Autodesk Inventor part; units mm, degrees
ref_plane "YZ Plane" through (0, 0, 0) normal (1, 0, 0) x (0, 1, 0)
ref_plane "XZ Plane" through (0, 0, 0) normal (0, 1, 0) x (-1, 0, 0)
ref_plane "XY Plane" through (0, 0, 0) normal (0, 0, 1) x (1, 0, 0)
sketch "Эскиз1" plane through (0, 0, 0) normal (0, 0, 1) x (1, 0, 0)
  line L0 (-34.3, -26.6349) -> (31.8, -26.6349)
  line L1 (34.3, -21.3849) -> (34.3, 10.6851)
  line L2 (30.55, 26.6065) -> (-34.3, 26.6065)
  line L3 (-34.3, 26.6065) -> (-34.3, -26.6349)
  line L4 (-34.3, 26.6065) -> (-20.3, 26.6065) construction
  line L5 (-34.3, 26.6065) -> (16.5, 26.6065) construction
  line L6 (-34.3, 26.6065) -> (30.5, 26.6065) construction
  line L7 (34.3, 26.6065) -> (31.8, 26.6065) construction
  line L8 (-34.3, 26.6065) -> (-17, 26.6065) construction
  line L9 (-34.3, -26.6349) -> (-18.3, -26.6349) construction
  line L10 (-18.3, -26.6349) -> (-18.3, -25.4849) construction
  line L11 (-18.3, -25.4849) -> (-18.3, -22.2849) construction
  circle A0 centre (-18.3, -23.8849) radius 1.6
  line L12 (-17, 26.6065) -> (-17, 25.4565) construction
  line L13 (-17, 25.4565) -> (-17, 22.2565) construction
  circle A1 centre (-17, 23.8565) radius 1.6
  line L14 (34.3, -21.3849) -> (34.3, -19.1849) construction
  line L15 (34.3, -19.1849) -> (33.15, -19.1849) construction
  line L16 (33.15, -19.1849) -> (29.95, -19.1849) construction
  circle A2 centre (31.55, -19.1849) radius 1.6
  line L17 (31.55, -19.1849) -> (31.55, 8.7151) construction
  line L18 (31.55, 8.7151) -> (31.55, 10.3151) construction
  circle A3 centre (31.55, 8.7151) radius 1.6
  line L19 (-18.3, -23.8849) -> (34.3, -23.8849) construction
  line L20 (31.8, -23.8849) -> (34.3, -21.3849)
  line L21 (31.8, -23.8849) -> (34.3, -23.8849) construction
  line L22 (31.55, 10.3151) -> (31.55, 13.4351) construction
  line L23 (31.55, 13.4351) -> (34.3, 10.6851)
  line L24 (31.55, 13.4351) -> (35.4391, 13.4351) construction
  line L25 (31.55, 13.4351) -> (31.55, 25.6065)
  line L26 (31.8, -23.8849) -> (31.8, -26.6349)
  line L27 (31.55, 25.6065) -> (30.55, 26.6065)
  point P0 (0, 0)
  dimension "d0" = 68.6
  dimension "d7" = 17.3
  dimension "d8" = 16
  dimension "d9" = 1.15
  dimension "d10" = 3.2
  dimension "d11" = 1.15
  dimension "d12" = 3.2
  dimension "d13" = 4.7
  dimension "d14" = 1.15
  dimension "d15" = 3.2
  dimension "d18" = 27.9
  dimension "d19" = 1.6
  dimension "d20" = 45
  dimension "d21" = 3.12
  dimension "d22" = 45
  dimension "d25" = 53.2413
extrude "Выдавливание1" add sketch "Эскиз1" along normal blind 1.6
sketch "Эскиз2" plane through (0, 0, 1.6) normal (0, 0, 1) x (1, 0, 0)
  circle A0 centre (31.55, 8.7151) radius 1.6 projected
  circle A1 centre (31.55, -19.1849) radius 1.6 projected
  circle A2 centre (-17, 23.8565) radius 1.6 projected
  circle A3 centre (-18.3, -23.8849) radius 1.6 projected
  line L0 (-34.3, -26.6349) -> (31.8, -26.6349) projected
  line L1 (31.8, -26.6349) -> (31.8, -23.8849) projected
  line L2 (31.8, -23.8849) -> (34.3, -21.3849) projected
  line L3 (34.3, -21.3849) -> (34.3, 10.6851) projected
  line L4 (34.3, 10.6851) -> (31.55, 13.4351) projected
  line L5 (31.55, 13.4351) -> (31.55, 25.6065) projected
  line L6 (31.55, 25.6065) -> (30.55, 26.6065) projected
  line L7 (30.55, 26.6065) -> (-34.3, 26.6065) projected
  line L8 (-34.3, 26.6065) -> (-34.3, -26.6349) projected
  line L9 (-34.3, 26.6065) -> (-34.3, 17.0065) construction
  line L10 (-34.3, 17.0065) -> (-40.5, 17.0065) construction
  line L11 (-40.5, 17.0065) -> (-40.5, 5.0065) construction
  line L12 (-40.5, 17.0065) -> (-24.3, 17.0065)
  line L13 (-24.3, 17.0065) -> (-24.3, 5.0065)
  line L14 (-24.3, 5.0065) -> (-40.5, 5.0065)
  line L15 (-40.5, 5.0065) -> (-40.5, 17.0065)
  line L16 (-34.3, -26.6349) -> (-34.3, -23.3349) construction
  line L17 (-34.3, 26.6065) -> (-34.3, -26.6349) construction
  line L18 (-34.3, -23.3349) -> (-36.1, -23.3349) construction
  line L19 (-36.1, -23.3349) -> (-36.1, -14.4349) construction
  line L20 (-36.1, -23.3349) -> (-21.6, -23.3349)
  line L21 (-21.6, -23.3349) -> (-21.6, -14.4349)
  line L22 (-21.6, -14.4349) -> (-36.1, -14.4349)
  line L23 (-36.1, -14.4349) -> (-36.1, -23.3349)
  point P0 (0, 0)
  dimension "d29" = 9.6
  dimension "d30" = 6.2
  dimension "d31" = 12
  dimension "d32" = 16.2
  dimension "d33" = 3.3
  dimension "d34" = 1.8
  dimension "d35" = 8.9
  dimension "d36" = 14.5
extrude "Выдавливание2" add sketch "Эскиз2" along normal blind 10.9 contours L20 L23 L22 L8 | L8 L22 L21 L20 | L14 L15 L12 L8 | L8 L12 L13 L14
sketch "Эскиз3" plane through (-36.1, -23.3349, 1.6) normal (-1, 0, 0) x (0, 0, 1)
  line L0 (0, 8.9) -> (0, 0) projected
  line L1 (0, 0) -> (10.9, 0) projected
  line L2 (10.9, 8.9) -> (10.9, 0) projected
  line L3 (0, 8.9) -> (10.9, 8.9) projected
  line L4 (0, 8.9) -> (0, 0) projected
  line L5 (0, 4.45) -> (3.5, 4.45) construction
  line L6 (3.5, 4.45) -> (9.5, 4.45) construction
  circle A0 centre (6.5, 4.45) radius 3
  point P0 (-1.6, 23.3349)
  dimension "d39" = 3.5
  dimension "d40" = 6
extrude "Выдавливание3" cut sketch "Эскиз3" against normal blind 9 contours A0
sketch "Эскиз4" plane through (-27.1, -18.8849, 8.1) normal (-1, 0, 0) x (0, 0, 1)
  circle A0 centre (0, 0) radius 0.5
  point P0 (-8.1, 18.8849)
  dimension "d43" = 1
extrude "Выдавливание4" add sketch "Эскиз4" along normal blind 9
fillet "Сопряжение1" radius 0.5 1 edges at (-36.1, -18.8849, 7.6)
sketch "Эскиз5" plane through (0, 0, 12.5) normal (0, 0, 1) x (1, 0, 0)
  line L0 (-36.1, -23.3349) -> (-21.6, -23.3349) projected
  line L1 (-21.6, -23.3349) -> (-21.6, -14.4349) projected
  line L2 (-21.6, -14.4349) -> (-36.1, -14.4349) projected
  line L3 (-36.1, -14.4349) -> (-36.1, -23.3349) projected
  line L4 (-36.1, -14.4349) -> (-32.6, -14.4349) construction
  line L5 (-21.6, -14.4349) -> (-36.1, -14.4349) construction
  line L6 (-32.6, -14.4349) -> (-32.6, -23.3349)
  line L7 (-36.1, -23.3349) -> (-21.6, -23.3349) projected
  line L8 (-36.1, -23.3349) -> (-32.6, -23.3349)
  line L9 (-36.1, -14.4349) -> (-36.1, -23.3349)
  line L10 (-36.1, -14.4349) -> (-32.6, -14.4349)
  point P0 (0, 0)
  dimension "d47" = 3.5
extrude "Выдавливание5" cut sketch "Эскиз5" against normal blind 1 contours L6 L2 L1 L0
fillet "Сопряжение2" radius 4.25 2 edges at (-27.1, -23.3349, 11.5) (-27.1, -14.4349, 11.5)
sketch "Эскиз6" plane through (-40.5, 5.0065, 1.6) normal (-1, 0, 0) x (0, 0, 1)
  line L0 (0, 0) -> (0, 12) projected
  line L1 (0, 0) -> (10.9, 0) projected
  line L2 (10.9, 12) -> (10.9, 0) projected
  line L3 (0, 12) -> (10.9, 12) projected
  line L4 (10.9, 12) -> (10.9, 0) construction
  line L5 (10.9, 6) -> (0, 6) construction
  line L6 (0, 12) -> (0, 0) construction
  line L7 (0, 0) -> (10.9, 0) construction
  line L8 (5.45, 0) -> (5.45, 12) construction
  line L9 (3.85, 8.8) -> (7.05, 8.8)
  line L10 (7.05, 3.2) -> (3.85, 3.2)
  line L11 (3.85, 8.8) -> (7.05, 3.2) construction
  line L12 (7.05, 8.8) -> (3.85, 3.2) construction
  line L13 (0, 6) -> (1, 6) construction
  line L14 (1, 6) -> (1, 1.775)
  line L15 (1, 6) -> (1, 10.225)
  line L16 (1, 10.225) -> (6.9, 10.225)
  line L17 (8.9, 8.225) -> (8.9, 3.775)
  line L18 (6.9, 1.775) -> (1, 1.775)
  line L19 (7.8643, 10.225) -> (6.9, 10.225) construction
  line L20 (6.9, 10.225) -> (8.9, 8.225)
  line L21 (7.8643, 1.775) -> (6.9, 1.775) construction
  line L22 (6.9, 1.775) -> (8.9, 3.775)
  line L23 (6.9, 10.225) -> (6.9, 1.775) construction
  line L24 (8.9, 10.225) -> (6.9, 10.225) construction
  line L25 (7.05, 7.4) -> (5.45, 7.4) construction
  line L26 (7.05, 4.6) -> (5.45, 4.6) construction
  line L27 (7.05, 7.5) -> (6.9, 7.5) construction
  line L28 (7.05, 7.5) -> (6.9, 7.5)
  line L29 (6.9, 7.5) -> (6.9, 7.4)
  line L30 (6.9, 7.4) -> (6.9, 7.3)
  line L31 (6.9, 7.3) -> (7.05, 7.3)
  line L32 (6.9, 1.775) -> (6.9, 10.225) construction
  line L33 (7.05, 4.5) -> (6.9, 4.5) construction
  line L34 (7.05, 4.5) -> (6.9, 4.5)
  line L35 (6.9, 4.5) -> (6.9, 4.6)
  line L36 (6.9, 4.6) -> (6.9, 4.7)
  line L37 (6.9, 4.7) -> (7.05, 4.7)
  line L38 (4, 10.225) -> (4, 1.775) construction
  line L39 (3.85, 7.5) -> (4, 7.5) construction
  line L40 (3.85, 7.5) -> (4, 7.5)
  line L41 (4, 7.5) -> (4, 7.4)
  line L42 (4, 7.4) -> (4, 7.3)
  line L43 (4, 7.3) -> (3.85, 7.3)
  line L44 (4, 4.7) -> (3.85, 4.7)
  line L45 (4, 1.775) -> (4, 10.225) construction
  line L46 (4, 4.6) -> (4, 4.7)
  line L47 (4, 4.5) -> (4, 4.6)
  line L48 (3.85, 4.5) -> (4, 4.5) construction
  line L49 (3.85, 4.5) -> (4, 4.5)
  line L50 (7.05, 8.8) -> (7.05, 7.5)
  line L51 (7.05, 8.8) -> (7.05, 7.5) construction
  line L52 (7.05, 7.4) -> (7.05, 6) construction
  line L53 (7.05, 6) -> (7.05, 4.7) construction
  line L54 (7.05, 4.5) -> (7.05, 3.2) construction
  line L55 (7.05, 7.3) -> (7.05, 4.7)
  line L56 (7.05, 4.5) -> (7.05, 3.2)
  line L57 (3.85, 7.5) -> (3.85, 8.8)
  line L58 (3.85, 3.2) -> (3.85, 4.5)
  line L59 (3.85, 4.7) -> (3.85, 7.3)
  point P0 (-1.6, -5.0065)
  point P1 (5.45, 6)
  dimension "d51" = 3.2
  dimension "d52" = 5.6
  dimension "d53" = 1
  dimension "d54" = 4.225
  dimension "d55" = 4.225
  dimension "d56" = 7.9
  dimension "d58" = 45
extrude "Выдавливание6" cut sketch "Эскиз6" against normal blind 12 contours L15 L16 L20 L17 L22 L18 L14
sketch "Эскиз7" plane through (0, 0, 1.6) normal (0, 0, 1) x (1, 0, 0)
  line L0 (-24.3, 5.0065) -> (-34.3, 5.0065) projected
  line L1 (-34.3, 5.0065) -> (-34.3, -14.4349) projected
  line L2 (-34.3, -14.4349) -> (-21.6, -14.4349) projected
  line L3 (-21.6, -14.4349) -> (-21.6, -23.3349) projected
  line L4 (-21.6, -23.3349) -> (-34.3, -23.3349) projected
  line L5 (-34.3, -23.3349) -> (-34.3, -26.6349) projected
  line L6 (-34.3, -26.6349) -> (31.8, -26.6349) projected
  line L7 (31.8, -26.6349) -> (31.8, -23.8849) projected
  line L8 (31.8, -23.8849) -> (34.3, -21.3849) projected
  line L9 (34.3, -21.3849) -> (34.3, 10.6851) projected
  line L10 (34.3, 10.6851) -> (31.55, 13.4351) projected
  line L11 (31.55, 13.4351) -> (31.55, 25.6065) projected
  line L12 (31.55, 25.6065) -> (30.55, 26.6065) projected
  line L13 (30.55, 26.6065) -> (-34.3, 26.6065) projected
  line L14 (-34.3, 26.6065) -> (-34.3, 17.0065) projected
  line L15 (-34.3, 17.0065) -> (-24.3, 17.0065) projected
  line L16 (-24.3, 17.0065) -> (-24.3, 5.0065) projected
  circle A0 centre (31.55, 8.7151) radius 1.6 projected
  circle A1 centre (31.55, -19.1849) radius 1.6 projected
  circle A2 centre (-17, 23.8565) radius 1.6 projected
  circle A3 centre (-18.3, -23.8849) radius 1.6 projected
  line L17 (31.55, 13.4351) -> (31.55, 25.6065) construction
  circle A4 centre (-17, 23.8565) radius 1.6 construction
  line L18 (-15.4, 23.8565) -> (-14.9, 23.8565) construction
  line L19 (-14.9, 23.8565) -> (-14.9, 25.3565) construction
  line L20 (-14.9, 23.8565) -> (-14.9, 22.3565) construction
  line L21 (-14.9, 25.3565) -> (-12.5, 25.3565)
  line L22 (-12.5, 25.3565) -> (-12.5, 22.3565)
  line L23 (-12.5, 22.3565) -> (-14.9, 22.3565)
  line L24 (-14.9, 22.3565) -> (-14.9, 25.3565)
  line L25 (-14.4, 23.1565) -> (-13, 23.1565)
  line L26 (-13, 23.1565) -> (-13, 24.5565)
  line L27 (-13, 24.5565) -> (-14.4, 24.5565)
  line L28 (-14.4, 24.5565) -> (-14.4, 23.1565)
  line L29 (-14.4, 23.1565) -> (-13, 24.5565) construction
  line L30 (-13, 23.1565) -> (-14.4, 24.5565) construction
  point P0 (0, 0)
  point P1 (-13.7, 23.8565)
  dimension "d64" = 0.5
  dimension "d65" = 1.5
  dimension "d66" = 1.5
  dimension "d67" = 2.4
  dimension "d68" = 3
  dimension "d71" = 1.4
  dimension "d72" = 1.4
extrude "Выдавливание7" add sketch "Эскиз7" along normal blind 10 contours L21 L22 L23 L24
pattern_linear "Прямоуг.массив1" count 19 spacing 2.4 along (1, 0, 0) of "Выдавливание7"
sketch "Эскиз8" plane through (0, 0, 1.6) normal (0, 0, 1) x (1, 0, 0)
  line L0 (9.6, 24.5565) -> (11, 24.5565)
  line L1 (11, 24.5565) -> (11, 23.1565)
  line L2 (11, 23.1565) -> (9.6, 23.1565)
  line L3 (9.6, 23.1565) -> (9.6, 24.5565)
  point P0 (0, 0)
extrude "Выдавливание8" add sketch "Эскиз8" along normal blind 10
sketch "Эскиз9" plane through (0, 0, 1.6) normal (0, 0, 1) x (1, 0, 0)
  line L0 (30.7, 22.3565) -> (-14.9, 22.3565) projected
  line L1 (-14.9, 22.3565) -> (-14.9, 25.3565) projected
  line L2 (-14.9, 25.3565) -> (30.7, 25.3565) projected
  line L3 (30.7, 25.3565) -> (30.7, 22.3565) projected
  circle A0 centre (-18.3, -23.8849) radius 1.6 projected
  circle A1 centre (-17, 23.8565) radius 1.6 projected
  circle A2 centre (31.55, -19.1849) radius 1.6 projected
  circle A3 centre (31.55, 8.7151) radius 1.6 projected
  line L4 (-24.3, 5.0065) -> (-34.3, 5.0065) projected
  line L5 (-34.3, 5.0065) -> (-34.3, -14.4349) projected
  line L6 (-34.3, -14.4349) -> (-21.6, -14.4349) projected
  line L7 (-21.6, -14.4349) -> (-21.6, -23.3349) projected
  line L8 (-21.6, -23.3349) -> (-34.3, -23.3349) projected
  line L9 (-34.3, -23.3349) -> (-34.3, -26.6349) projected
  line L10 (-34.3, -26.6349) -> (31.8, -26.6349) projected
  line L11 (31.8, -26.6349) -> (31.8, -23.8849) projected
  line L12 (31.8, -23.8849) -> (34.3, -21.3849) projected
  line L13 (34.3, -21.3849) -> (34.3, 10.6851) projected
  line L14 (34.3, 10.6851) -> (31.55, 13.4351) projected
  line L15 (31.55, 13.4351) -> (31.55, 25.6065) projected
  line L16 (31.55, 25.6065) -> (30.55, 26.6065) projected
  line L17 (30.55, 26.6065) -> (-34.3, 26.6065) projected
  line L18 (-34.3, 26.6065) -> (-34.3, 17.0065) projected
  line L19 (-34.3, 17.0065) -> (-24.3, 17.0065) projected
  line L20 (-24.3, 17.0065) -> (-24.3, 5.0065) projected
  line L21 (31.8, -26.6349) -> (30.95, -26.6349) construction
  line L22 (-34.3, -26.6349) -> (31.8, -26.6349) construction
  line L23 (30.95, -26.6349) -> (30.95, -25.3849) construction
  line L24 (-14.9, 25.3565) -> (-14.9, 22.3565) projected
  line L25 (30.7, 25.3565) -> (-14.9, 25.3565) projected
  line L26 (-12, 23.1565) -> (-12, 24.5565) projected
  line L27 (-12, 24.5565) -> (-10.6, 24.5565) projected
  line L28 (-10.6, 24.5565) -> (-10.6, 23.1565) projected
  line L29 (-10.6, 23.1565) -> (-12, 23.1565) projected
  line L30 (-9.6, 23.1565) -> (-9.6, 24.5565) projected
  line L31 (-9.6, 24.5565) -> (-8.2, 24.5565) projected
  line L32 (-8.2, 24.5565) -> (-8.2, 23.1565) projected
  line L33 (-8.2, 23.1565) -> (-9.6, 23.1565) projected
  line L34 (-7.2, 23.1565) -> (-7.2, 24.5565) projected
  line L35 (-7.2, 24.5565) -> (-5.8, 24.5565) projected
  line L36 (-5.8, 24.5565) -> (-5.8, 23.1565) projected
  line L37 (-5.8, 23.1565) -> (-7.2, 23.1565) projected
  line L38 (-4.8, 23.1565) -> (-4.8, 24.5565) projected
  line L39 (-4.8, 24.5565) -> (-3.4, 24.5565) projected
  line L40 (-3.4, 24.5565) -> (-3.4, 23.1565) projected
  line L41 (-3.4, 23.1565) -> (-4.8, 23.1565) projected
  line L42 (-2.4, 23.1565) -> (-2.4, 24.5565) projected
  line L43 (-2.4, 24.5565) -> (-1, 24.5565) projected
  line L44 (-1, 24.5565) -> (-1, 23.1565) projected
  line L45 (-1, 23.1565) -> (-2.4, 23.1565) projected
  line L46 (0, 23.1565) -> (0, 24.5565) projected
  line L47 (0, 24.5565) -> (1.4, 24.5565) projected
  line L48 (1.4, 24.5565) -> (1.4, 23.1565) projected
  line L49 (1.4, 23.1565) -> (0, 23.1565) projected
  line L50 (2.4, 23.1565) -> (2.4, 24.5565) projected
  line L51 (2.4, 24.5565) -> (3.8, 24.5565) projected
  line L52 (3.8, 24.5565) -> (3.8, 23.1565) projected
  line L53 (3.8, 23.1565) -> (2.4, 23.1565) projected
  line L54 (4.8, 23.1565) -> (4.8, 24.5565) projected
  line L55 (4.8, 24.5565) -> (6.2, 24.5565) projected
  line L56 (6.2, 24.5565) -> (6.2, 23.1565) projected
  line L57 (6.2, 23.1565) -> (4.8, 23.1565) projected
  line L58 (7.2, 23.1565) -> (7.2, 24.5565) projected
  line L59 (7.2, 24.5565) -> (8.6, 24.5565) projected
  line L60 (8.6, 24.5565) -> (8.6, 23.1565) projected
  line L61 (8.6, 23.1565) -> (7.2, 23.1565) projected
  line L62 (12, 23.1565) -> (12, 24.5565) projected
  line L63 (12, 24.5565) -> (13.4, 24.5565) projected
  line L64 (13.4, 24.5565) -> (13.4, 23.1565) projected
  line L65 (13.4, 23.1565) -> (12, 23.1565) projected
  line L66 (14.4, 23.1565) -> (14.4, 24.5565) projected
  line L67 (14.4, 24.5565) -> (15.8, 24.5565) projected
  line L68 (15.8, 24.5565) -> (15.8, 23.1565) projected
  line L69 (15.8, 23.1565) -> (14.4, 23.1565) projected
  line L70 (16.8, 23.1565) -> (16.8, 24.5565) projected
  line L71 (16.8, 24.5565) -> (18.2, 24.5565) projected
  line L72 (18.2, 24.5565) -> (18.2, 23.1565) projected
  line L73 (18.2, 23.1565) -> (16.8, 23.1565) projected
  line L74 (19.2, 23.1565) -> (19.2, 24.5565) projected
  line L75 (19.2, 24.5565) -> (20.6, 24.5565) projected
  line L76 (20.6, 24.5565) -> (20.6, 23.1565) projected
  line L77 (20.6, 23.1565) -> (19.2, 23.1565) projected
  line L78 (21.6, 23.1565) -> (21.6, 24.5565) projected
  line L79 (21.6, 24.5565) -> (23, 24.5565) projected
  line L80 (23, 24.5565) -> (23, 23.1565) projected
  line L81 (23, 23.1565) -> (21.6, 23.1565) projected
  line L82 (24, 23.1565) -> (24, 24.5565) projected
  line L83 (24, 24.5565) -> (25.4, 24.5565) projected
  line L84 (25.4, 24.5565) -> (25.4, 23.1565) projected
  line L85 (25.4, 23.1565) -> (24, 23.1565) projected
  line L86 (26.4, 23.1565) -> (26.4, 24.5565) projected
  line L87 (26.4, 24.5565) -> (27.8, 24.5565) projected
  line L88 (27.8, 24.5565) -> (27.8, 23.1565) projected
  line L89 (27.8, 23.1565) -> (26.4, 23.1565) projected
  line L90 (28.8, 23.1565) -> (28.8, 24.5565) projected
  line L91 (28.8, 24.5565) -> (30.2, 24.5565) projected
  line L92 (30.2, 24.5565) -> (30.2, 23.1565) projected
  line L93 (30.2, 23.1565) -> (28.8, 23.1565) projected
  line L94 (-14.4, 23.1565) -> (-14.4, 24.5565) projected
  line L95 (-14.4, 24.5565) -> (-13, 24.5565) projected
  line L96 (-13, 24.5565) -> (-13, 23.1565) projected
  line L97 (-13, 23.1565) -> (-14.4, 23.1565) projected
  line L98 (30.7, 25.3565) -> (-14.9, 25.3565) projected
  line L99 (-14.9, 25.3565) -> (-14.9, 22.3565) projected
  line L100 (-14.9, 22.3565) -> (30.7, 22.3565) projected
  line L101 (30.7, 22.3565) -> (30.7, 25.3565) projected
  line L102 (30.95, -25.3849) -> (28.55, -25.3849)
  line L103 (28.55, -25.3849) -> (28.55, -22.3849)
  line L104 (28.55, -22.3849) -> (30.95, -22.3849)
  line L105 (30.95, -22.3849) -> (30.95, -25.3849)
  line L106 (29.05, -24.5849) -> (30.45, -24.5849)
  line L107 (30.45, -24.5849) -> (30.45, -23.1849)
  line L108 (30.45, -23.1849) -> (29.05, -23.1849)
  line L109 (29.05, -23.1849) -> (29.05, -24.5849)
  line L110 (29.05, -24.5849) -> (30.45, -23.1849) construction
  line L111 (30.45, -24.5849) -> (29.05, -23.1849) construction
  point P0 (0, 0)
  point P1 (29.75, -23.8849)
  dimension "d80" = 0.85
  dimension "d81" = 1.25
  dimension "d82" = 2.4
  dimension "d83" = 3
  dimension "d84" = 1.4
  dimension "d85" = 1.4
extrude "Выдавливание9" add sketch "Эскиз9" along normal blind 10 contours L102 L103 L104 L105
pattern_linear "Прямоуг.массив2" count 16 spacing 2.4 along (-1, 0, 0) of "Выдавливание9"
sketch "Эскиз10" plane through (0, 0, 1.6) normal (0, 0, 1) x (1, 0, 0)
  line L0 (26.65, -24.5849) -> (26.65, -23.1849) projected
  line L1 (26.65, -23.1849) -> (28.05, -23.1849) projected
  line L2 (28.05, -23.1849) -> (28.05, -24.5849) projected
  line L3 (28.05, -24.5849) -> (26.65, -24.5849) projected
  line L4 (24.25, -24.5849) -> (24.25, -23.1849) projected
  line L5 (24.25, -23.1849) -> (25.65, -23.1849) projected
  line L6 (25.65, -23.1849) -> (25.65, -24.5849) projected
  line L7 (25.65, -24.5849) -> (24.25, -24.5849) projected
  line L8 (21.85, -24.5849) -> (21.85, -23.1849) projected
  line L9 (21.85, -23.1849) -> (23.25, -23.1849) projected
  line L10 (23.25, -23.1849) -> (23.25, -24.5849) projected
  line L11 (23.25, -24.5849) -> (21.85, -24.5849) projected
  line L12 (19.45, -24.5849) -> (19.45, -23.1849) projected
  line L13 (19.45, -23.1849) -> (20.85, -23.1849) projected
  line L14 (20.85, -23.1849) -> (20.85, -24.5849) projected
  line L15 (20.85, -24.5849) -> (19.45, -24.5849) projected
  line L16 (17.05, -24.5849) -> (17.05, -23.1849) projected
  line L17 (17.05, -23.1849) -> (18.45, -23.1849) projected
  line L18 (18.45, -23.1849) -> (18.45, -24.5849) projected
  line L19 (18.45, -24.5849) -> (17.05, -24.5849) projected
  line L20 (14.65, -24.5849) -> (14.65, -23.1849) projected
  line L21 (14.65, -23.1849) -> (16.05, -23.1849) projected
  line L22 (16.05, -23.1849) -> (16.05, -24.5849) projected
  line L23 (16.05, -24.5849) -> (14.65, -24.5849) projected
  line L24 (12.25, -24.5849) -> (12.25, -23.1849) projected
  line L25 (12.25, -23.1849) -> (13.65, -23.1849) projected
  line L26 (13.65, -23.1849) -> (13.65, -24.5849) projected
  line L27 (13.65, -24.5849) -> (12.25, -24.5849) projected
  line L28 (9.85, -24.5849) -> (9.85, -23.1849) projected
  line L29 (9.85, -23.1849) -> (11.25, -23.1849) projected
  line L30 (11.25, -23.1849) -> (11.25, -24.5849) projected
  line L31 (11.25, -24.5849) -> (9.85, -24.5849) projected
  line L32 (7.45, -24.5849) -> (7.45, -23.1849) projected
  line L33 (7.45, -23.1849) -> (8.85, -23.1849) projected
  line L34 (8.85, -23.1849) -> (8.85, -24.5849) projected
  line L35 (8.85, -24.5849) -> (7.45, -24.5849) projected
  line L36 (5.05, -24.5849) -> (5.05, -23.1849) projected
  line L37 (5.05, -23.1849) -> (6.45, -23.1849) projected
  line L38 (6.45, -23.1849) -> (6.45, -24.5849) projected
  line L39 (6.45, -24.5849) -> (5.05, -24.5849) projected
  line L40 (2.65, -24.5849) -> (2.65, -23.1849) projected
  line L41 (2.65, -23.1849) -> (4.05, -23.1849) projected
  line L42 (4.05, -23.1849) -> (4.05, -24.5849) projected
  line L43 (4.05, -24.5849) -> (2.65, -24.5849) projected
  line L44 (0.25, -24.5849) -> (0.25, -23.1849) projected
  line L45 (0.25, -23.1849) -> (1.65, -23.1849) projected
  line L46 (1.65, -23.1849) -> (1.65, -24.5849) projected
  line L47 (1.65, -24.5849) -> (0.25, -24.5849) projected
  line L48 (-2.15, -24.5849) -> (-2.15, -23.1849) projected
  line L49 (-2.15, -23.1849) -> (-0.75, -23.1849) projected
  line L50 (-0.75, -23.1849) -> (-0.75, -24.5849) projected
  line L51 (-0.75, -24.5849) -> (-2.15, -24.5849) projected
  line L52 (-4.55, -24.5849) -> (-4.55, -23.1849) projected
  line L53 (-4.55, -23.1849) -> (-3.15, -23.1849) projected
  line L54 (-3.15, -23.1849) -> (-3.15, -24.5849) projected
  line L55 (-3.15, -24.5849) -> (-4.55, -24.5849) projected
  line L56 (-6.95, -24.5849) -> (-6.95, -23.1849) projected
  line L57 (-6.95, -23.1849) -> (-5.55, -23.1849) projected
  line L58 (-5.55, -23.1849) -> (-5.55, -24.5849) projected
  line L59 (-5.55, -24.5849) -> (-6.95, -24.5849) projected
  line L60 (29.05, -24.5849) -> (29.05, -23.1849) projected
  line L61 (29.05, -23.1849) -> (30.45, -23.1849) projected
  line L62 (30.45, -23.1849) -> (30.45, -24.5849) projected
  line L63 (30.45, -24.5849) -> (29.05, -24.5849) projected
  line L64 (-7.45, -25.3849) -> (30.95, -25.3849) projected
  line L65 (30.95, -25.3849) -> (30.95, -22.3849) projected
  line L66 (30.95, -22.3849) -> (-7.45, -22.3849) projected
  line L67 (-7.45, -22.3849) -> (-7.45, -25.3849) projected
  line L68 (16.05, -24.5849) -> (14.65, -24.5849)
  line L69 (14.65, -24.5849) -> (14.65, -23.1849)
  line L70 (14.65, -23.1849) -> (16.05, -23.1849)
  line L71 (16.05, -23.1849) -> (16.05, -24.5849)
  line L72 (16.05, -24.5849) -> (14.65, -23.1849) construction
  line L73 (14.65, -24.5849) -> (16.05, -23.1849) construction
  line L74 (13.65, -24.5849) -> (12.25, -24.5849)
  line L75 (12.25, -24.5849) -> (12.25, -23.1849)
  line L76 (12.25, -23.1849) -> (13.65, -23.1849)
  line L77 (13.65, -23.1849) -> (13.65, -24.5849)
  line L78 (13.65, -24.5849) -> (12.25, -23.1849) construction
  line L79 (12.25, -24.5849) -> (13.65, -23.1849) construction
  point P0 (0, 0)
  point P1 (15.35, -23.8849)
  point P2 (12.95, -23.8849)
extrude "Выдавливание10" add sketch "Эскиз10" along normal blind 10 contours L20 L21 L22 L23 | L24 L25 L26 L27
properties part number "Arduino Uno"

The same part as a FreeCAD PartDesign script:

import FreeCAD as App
import Part
import Sketcher
from FreeCAD import Vector
Q = App.Units.Quantity


def edges_at(feature, points):
    """Names of the edges that pass closest to the given points."""
    edges = feature.Shape.Edges
    near = lambda p: min(range(len(edges)), key=lambda i: edges[i].distToShape(Part.Vertex(*p))[0])
    return sorted({f"Edge{near(p) + 1}" for p in points})

doc = App.newDocument("Part")
body = doc.addObject("PartDesign::Body", "Body")

# Sketch on XY plane
sketch1 = body.newObject("Sketcher::SketchObject", "Sketch")
sketch1.AttachmentSupport = (doc.getObject("XY_Plane"), [""])
sketch1.MapMode = "FlatFace"
sketch1.addGeometry([
    Part.LineSegment(Vector(-34.3, 26.6, 0), Vector(-34.3, -26.6, 0)),  # 0
    Part.LineSegment(Vector(-34.3, -26.6, 0), Vector(31.8, -26.6, 0)),  # 1
    Part.LineSegment(Vector(31.8, -26.6, 0), Vector(31.8, -23.9, 0)),  # 2
    Part.LineSegment(Vector(31.8, -23.9, 0), Vector(34.3, -21.4, 0)),  # 3
    Part.LineSegment(Vector(34.3, -21.4, 0), Vector(34.3, 10.7, 0)),  # 4
    Part.LineSegment(Vector(34.3, 10.7, 0), Vector(31.6, 13.4, 0)),  # 5
    Part.LineSegment(Vector(31.6, 13.4, 0), Vector(31.6, 25.6, 0)),  # 6
    Part.LineSegment(Vector(31.6, 25.6, 0), Vector(30.6, 26.6, 0)),  # 7
    Part.LineSegment(Vector(30.6, 26.6, 0), Vector(-34.3, 26.6, 0)),  # 8
    Part.Circle(Vector(-18.3, -23.9, 0), Vector(0, 0, 1), 1.6),  # 9
    Part.Circle(Vector(31.6, -19.2, 0), Vector(0, 0, 1), 1.6),  # 10
    Part.Circle(Vector(-17, 23.9, 0), Vector(0, 0, 1), 1.6),  # 11
    Part.Circle(Vector(31.6, 8.7, 0), Vector(0, 0, 1), 1.6),  # 12
], False)
sketch1.addConstraint([
    Sketcher.Constraint("Coincident", 0, 2, 1, 1),
    Sketcher.Constraint("Coincident", 1, 2, 2, 1),
    Sketcher.Constraint("Coincident", 2, 2, 3, 1),
    Sketcher.Constraint("Coincident", 3, 2, 4, 1),
    Sketcher.Constraint("Coincident", 4, 2, 5, 1),
    Sketcher.Constraint("Coincident", 5, 2, 6, 1),
    Sketcher.Constraint("Coincident", 6, 2, 7, 1),
    Sketcher.Constraint("Coincident", 7, 2, 8, 1),
    Sketcher.Constraint("Coincident", 8, 2, 0, 1),
    Sketcher.Constraint("Vertical", 0),
    Sketcher.Constraint("Horizontal", 1),
    Sketcher.Constraint("Vertical", 2),
    Sketcher.Constraint("Vertical", 4),
    Sketcher.Constraint("Vertical", 6),
    Sketcher.Constraint("Horizontal", 8),
    Sketcher.Constraint("Equal", 9, 10),
    Sketcher.Constraint("Equal", 10, 11),
    Sketcher.Constraint("Equal", 11, 12),
    Sketcher.Constraint("Perpendicular", 3, 5),
    Sketcher.Constraint("Parallel", 5, 7),
    Sketcher.Constraint("Horizontal", 9, 3, 2, 2),
    Sketcher.Constraint("Vertical", 10, 3, 12, 3),
    Sketcher.Constraint("Vertical", 12, 3, 5, 2),
    Sketcher.Constraint("Diameter", 9, 3.2),
    Sketcher.Constraint("Angle", 3, Q("45 deg")),
    Sketcher.Constraint("DistanceX", 0, 2, 9, 3, 16.0),
    Sketcher.Constraint("DistanceY", 9, 3, 10, 3, 4.7),
    Sketcher.Constraint("DistanceY", 10, 3, 12, 3, 27.9),
    Sketcher.Constraint("DistanceX", 0, 2, 11, 3, 17.3),
    Sketcher.Constraint("DistanceX", 1, 1, 1, 2, 66.1),
    Sketcher.Constraint("DistanceY", 0, 2, 0, 1, 53.2414),
    Sketcher.Constraint("DistanceX", 11, 3, -1, 1, 17.0),
    Sketcher.Constraint("DistanceX", 7, 2, 6, 2, 1.0),
    Sketcher.Constraint("DistanceX", 8, 2, 8, 1, 64.85),
    Sketcher.Constraint("DistanceY", 2, 1, 2, 2, 2.75),
    Sketcher.Constraint("DistanceY", 4, 1, 4, 2, 32.07),
    Sketcher.Constraint("DistanceX", -1, 1, 3, 2, 34.3),
    Sketcher.Constraint("DistanceY", 11, 3, 8, 2, 2.75),
    Sketcher.Constraint("DistanceY", 9, 3, -1, 1, 23.885),
])
pad1 = body.newObject("PartDesign::Pad", "Pad")
pad1.Profile = sketch1
pad1.Length = 1.6

# Sketch on XY plane
sketch2 = body.newObject("Sketcher::SketchObject", "Sketch001")
sketch2.AttachmentSupport = (doc.getObject("XY_Plane"), [""])
sketch2.MapMode = "FlatFace"
sketch2.AttachmentOffset = App.Placement(Vector(0, 0, 1.6), App.Rotation())
sketch2.addGeometry([
    Part.LineSegment(Vector(-36, -23, 0), Vector(-22, -23, 0)),  # 0
    Part.LineSegment(Vector(-22, -23, 0), Vector(-22, -14, 0)),  # 1
    Part.LineSegment(Vector(-22, -14, 0), Vector(-36, -14, 0)),  # 2
    Part.LineSegment(Vector(-36, -14, 0), Vector(-36, -23, 0)),  # 3
    Part.LineSegment(Vector(-40, 5, 0), Vector(-24, 5, 0)),  # 4
    Part.LineSegment(Vector(-24, 5, 0), Vector(-24, 17, 0)),  # 5
    Part.LineSegment(Vector(-24, 17, 0), Vector(-40, 17, 0)),  # 6
    Part.LineSegment(Vector(-40, 17, 0), Vector(-40, 5, 0)),  # 7
], False)
sketch2.addConstraint([
    Sketcher.Constraint("Coincident", 0, 2, 1, 1),
    Sketcher.Constraint("Coincident", 1, 2, 2, 1),
    Sketcher.Constraint("Coincident", 2, 2, 3, 1),
    Sketcher.Constraint("Coincident", 3, 2, 0, 1),
    Sketcher.Constraint("Coincident", 4, 2, 5, 1),
    Sketcher.Constraint("Coincident", 5, 2, 6, 1),
    Sketcher.Constraint("Coincident", 6, 2, 7, 1),
    Sketcher.Constraint("Coincident", 7, 2, 4, 1),
    Sketcher.Constraint("Horizontal", 0),
    Sketcher.Constraint("Vertical", 1),
    Sketcher.Constraint("Horizontal", 2),
    Sketcher.Constraint("Vertical", 3),
    Sketcher.Constraint("Horizontal", 4),
    Sketcher.Constraint("Vertical", 5),
    Sketcher.Constraint("Horizontal", 6),
    Sketcher.Constraint("Vertical", 7),
    Sketcher.Constraint("DistanceY", 5, 1, 5, 2, 12.0),
    Sketcher.Constraint("DistanceX", 0, 1, 0, 2, 14.5),
    Sketcher.Constraint("DistanceX", 4, 1, 4, 2, 16.2),
    Sketcher.Constraint("DistanceY", 1, 1, 1, 2, 8.9),
    Sketcher.Constraint("DistanceX", 0, 2, -1, 1, 21.6),
    Sketcher.Constraint("DistanceX", 4, 2, -1, 1, 24.3),
    Sketcher.Constraint("DistanceY", 0, 2, -1, 1, 23.335),
    Sketcher.Constraint("DistanceY", -1, 1, 4, 2, 5.0065),
])
pad2 = body.newObject("PartDesign::Pad", "Pad001")
pad2.Profile = sketch2
pad2.Length = 10.9

# Sketch on YZ plane
sketch3 = body.newObject("Sketcher::SketchObject", "Sketch002")
sketch3.AttachmentSupport = (doc.getObject("YZ_Plane"), [""])
sketch3.MapMode = "FlatFace"
sketch3.AttachmentOffset = App.Placement(Vector(0, 0, -36.1), App.Rotation())
sketch3.addGeometry(Part.Circle(Vector(-18.9, 8.1, 0), Vector(0, 0, 1), 3), False)
sketch3.addConstraint([
    Sketcher.Constraint("Diameter", 0, 6.0),
    Sketcher.Constraint("DistanceY", -1, 1, 0, 3, 8.1),
    Sketcher.Constraint("DistanceX", 0, 3, -1, 1, 18.885),
])
pocket1 = body.newObject("PartDesign::Pocket", "Pocket")
pocket1.Profile = sketch3
pocket1.Length = 9
pocket1.Reversed = True

# Sketch on YZ plane
sketch4 = body.newObject("Sketcher::SketchObject", "Sketch003")
sketch4.AttachmentSupport = (doc.getObject("YZ_Plane"), [""])
sketch4.MapMode = "FlatFace"
sketch4.AttachmentOffset = App.Placement(Vector(0, 0, -27.1), App.Rotation())
sketch4.addGeometry(Part.Circle(Vector(-18.9, 8.1, 0), Vector(0, 0, 1), 0.5), False)
sketch4.addConstraint([
    Sketcher.Constraint("Diameter", 0, 1.0),
    Sketcher.Constraint("DistanceY", -1, 1, 0, 3, 8.1),
    Sketcher.Constraint("DistanceX", 0, 3, -1, 1, 18.885),
])
pad3 = body.newObject("PartDesign::Pad", "Pad002")
pad3.Profile = sketch4
pad3.Length = 9
pad3.Reversed = True
doc.recompute()

fillet = body.newObject("PartDesign::Fillet", "Fillet")
fillet.Base = (pad3, edges_at(pad3, [(-36.1, -18.885, 7.6)]))
fillet.Radius = 0.5

# Sketch on XY plane
sketch5 = body.newObject("Sketcher::SketchObject", "Sketch004")
sketch5.AttachmentSupport = (doc.getObject("XY_Plane"), [""])
sketch5.MapMode = "FlatFace"
sketch5.AttachmentOffset = App.Placement(Vector(0, 0, 12.5), App.Rotation())
sketch5.addGeometry([
    Part.LineSegment(Vector(-33, -14, 0), Vector(-33, -23, 0)),
    Part.LineSegment(Vector(-33, -23, 0), Vector(-22, -23, 0)),
    Part.LineSegment(Vector(-22, -23, 0), Vector(-22, -14, 0)),
    Part.LineSegment(Vector(-22, -14, 0), Vector(-33, -14, 0)),
], False)
sketch5.addConstraint([
    Sketcher.Constraint("Coincident", 0, 2, 1, 1),
    Sketcher.Constraint("Coincident", 1, 2, 2, 1),
    Sketcher.Constraint("Coincident", 2, 2, 3, 1),
    Sketcher.Constraint("Coincident", 3, 2, 0, 1),
    Sketcher.Constraint("Vertical", 0),
    Sketcher.Constraint("Horizontal", 1),
    Sketcher.Constraint("Vertical", 2),
    Sketcher.Constraint("Horizontal", 3),
    Sketcher.Constraint("DistanceX", 1, 1, 1, 2, 11.0),
    Sketcher.Constraint("DistanceY", 0, 2, 0, 1, 8.9),
    Sketcher.Constraint("DistanceX", 0, 2, -1, 1, 32.6),
    Sketcher.Constraint("DistanceY", 0, 2, -1, 1, 23.335),
])
pocket2 = body.newObject("PartDesign::Pocket", "Pocket001")
pocket2.Profile = sketch5
pocket2.Length = 1
doc.recompute()

fillet2 = body.newObject("PartDesign::Fillet", "Fillet001")
fillet2.Base = (pocket2, edges_at(pocket2, [(-27.1, -23.335, 11.5), (-27.1, -14.435, 11.5)]))
fillet2.Radius = 4.25

# Sketch on YZ plane
sketch6 = body.newObject("Sketcher::SketchObject", "Sketch005")
sketch6.AttachmentSupport = (doc.getObject("YZ_Plane"), [""])
sketch6.MapMode = "FlatFace"
sketch6.AttachmentOffset = App.Placement(Vector(0, 0, -40.5), App.Rotation())
sketch6.addGeometry([
    Part.LineSegment(Vector(15.23, 2.6, 0), Vector(6.78, 2.6, 0)),  # 0
    Part.LineSegment(Vector(6.78, 2.6, 0), Vector(6.78, 8.5, 0)),  # 1
    Part.LineSegment(Vector(6.78, 8.5, 0), Vector(8.78, 10.5, 0)),  # 2
    Part.LineSegment(Vector(8.78, 10.5, 0), Vector(13.23, 10.5, 0)),  # 3
    Part.LineSegment(Vector(13.23, 10.5, 0), Vector(15.23, 8.5, 0)),  # 4
    Part.LineSegment(Vector(15.23, 8.5, 0), Vector(15.23, 2.6, 0)),  # 5
    Part.LineSegment(Vector(12.51, 5.45, 0), Vector(13.81, 5.45, 0)),  # 6
    Part.LineSegment(Vector(13.81, 5.45, 0), Vector(13.81, 8.65, 0)),  # 7
    Part.LineSegment(Vector(13.81, 8.65, 0), Vector(12.51, 8.65, 0)),  # 8
    Part.LineSegment(Vector(12.51, 8.65, 0), Vector(12.51, 8.5, 0)),  # 9
    Part.LineSegment(Vector(12.51, 8.5, 0), Vector(12.31, 8.5, 0)),  # 10
    Part.LineSegment(Vector(12.31, 8.5, 0), Vector(12.31, 8.65, 0)),  # 11
    Part.LineSegment(Vector(12.31, 8.65, 0), Vector(9.71, 8.65, 0)),  # 12
    Part.LineSegment(Vector(9.71, 8.65, 0), Vector(9.71, 8.5, 0)),  # 13
    Part.LineSegment(Vector(9.71, 8.5, 0), Vector(9.51, 8.5, 0)),  # 14
    Part.LineSegment(Vector(9.51, 8.5, 0), Vector(9.51, 8.65, 0)),  # 15
    Part.LineSegment(Vector(9.51, 8.65, 0), Vector(8.21, 8.65, 0)),  # 16
    Part.LineSegment(Vector(8.21, 8.65, 0), Vector(8.21, 5.45, 0)),  # 17
    Part.LineSegment(Vector(8.21, 5.45, 0), Vector(9.51, 5.45, 0)),  # 18
    Part.LineSegment(Vector(9.51, 5.45, 0), Vector(9.51, 5.6, 0)),  # 19
    Part.LineSegment(Vector(9.51, 5.6, 0), Vector(9.71, 5.6, 0)),  # 20
    Part.LineSegment(Vector(9.71, 5.6, 0), Vector(9.71, 5.45, 0)),  # 21
    Part.LineSegment(Vector(9.71, 5.45, 0), Vector(12.31, 5.45, 0)),  # 22
    Part.LineSegment(Vector(12.31, 5.45, 0), Vector(12.31, 5.6, 0)),  # 23
    Part.LineSegment(Vector(12.31, 5.6, 0), Vector(12.51, 5.6, 0)),  # 24
    Part.LineSegment(Vector(12.51, 5.6, 0), Vector(12.51, 5.45, 0)),  # 25
], False)
sketch6.addConstraint([
    Sketcher.Constraint("Coincident", 0, 2, 1, 1),
    Sketcher.Constraint("Coincident", 1, 2, 2, 1),
    Sketcher.Constraint("Coincident", 2, 2, 3, 1),
    Sketcher.Constraint("Coincident", 3, 2, 4, 1),
    Sketcher.Constraint("Coincident", 4, 2, 5, 1),
    Sketcher.Constraint("Coincident", 5, 2, 0, 1),
    Sketcher.Constraint("Coincident", 6, 2, 7, 1),
    Sketcher.Constraint("Coincident", 7, 2, 8, 1),
    Sketcher.Constraint("Coincident", 8, 2, 9, 1),
    Sketcher.Constraint("Coincident", 9, 2, 10, 1),
    Sketcher.Constraint("Coincident", 10, 2, 11, 1),
    Sketcher.Constraint("Coincident", 11, 2, 12, 1),
    Sketcher.Constraint("Coincident", 12, 2, 13, 1),
    Sketcher.Constraint("Coincident", 13, 2, 14, 1),
    Sketcher.Constraint("Coincident", 14, 2, 15, 1),
    Sketcher.Constraint("Coincident", 15, 2, 16, 1),
    Sketcher.Constraint("Coincident", 16, 2, 17, 1),
    Sketcher.Constraint("Coincident", 17, 2, 18, 1),
    Sketcher.Constraint("Coincident", 18, 2, 19, 1),
    Sketcher.Constraint("Coincident", 19, 2, 20, 1),
    Sketcher.Constraint("Coincident", 20, 2, 21, 1),
    Sketcher.Constraint("Coincident", 21, 2, 22, 1),
    Sketcher.Constraint("Coincident", 22, 2, 23, 1),
    Sketcher.Constraint("Coincident", 23, 2, 24, 1),
    Sketcher.Constraint("Coincident", 24, 2, 25, 1),
    Sketcher.Constraint("Coincident", 25, 2, 6, 1),
    Sketcher.Constraint("Horizontal", 0),
    Sketcher.Constraint("Vertical", 1),
    Sketcher.Constraint("Horizontal", 3),
    Sketcher.Constraint("Vertical", 5),
    Sketcher.Constraint("Horizontal", 6),
    Sketcher.Constraint("Vertical", 7),
    Sketcher.Constraint("Horizontal", 8),
    Sketcher.Constraint("Vertical", 9),
    Sketcher.Constraint("Horizontal", 10),
    Sketcher.Constraint("Vertical", 11),
    Sketcher.Constraint("Horizontal", 12),
    Sketcher.Constraint("Vertical", 13),
    Sketcher.Constraint("Horizontal", 14),
    Sketcher.Constraint("Vertical", 15),
    Sketcher.Constraint("Horizontal", 16),
    Sketcher.Constraint("Vertical", 17),
    Sketcher.Constraint("Horizontal", 18),
    Sketcher.Constraint("Vertical", 19),
    Sketcher.Constraint("Horizontal", 20),
    Sketcher.Constraint("Vertical", 21),
    Sketcher.Constraint("Horizontal", 22),
    Sketcher.Constraint("Vertical", 23),
    Sketcher.Constraint("Horizontal", 24),
    Sketcher.Constraint("Vertical", 25),
    Sketcher.Constraint("Perpendicular", 2, 4),
    Sketcher.Constraint("Horizontal", 1, 2, 4, 2),
    Sketcher.Constraint("Horizontal", 4, 2, 9, 2),
    Sketcher.Constraint("Horizontal", 8, 2, 11, 2),
    Sketcher.Constraint("Horizontal", 10, 2, 13, 2),
    Sketcher.Constraint("Horizontal", 12, 2, 15, 2),
    Sketcher.Constraint("Horizontal", 6, 2, 17, 2),
    Sketcher.Constraint("Horizontal", 18, 2, 21, 2),
    Sketcher.Constraint("Horizontal", 20, 2, 23, 2),
    Sketcher.Constraint("Vertical", 15, 2, 18, 2),
    Sketcher.Constraint("Vertical", 13, 2, 20, 2),
    Sketcher.Constraint("Vertical", 11, 2, 22, 2),
    Sketcher.Constraint("Vertical", 9, 2, 24, 2),
    Sketcher.Constraint("Equal", 10, 14),
    Sketcher.Constraint("Equal", 8, 16),
    Sketcher.Constraint("Equal", 15, 19),
    Sketcher.Constraint("Equal", 2, 4),
    Sketcher.Constraint("DistanceY", 7, 1, 7, 2, 3.2),
    Sketcher.Constraint("DistanceY", -1, 1, 19, 2, 5.6),
    Sketcher.Constraint("DistanceY", 0, 2, 2, 2, 7.9),
    Sketcher.Constraint("DistanceX", 6, 1, 6, 2, 1.3),
    Sketcher.Constraint("DistanceX", 10, 2, 10, 1, 0.2),
    Sketcher.Constraint("DistanceX", 12, 2, 12, 1, 2.6),
    Sketcher.Constraint("DistanceY", 1, 1, 1, 2, 5.9),
    Sketcher.Constraint("DistanceX", 0, 2, 0, 1, 8.45),
    Sketcher.Constraint("DistanceY", 9, 2, 9, 1, 0.15),
    Sketcher.Constraint("DistanceX", 6, 2, 5, 2, 1.425),
    Sketcher.Constraint("DistanceX", -1, 1, 0, 2, 6.7815),
])
pocket3 = body.newObject("PartDesign::Pocket", "Pocket002")
pocket3.Profile = sketch6
pocket3.Length = 12
pocket3.Reversed = True

# Sketch on XY plane
sketch7 = body.newObject("Sketcher::SketchObject", "Sketch006")
sketch7.AttachmentSupport = (doc.getObject("XY_Plane"), [""])
sketch7.MapMode = "FlatFace"
sketch7.AttachmentOffset = App.Placement(Vector(0, 0, 1.6), App.Rotation())
sketch7.addGeometry([
    Part.LineSegment(Vector(-12.5, 25.4, 0), Vector(-14.9, 25.4, 0)),  # 0
    Part.LineSegment(Vector(-14.9, 25.4, 0), Vector(-14.9, 22.4, 0)),  # 1
    Part.LineSegment(Vector(-14.9, 22.4, 0), Vector(-12.5, 22.4, 0)),  # 2
    Part.LineSegment(Vector(-12.5, 22.4, 0), Vector(-12.5, 25.4, 0)),  # 3
    Part.LineSegment(Vector(-13, 23.2, 0), Vector(-14.4, 23.2, 0)),  # 4
    Part.LineSegment(Vector(-14.4, 23.2, 0), Vector(-14.4, 24.6, 0)),  # 5
    Part.LineSegment(Vector(-14.4, 24.6, 0), Vector(-13, 24.6, 0)),  # 6
    Part.LineSegment(Vector(-13, 24.6, 0), Vector(-13, 23.2, 0)),  # 7
], False)
sketch7.addConstraint([
    Sketcher.Constraint("Coincident", 0, 2, 1, 1),
    Sketcher.Constraint("Coincident", 1, 2, 2, 1),
    Sketcher.Constraint("Coincident", 2, 2, 3, 1),
    Sketcher.Constraint("Coincident", 3, 2, 0, 1),
    Sketcher.Constraint("Coincident", 4, 2, 5, 1),
    Sketcher.Constraint("Coincident", 5, 2, 6, 1),
    Sketcher.Constraint("Coincident", 6, 2, 7, 1),
    Sketcher.Constraint("Coincident", 7, 2, 4, 1),
    Sketcher.Constraint("Horizontal", 0),
    Sketcher.Constraint("Vertical", 1),
    Sketcher.Constraint("Horizontal", 2),
    Sketcher.Constraint("Vertical", 3),
    Sketcher.Constraint("Horizontal", 4),
    Sketcher.Constraint("Vertical", 5),
    Sketcher.Constraint("Horizontal", 6),
    Sketcher.Constraint("Vertical", 7),
    Sketcher.Constraint("Equal", 6, 5),
    Sketcher.Constraint("DistanceY", 1, 2, 1, 1, 3.0),
    Sketcher.Constraint("DistanceX", 0, 2, 0, 1, 2.4),
    Sketcher.Constraint("DistanceX", 4, 2, 4, 1, 1.4),
    Sketcher.Constraint("DistanceX", 1, 2, 4, 2, 0.5),
    Sketcher.Constraint("DistanceX", 6, 2, -1, 1, 13.0),
    Sketcher.Constraint("DistanceY", 1, 2, 4, 2, 0.8),
    Sketcher.Constraint("DistanceY", -1, 1, 0, 2, 25.3565),
])
pad4 = body.newObject("PartDesign::Pad", "Pad003")
pad4.Profile = sketch7
pad4.Length = 10
doc.recompute()

linearpattern = body.newObject("PartDesign::LinearPattern", "LinearPattern")
linearpattern.Originals = [pad4]
linearpattern.Direction = (doc.getObject("X_Axis"), [""])
linearpattern.Mode = "offset"
linearpattern.Offset = 2.4
linearpattern.Occurrences = 19
body.Tip = linearpattern

# Sketch on XY plane
sketch8 = body.newObject("Sketcher::SketchObject", "Sketch007")
sketch8.AttachmentSupport = (doc.getObject("XY_Plane"), [""])
sketch8.MapMode = "FlatFace"
sketch8.AttachmentOffset = App.Placement(Vector(0, 0, 1.6), App.Rotation())
sketch8.addGeometry([
    Part.LineSegment(Vector(11, 24.6, 0), Vector(9.6, 24.6, 0)),
    Part.LineSegment(Vector(9.6, 24.6, 0), Vector(9.6, 23.2, 0)),
    Part.LineSegment(Vector(9.6, 23.2, 0), Vector(11, 23.2, 0)),
    Part.LineSegment(Vector(11, 23.2, 0), Vector(11, 24.6, 0)),
], False)
sketch8.addConstraint([
    Sketcher.Constraint("Coincident", 0, 2, 1, 1),
    Sketcher.Constraint("Coincident", 1, 2, 2, 1),
    Sketcher.Constraint("Coincident", 2, 2, 3, 1),
    Sketcher.Constraint("Coincident", 3, 2, 0, 1),
    Sketcher.Constraint("Horizontal", 0),
    Sketcher.Constraint("Vertical", 1),
    Sketcher.Constraint("Horizontal", 2),
    Sketcher.Constraint("Vertical", 3),
    Sketcher.Constraint("Equal", 2, 1),
    Sketcher.Constraint("DistanceX", 0, 2, 0, 1, 1.4),
    Sketcher.Constraint("DistanceX", -1, 1, 2, 2, 11.0),
    Sketcher.Constraint("DistanceY", -1, 1, 0, 2, 24.5565),
])
pad5 = body.newObject("PartDesign::Pad", "Pad004")
pad5.Profile = sketch8
pad5.Length = 10

# Sketch on XY plane
sketch9 = body.newObject("Sketcher::SketchObject", "Sketch008")
sketch9.AttachmentSupport = (doc.getObject("XY_Plane"), [""])
sketch9.MapMode = "FlatFace"
sketch9.AttachmentOffset = App.Placement(Vector(0, 0, 1.6), App.Rotation())
sketch9.addGeometry([
    Part.LineSegment(Vector(28.6, -25.4, 0), Vector(30.9, -25.4, 0)),  # 0
    Part.LineSegment(Vector(30.9, -25.4, 0), Vector(30.9, -22.4, 0)),  # 1
    Part.LineSegment(Vector(30.9, -22.4, 0), Vector(28.6, -22.4, 0)),  # 2
    Part.LineSegment(Vector(28.6, -22.4, 0), Vector(28.6, -25.4, 0)),  # 3
    Part.LineSegment(Vector(30.4, -24.6, 0), Vector(29.1, -24.6, 0)),  # 4
    Part.LineSegment(Vector(29.1, -24.6, 0), Vector(29.1, -23.2, 0)),  # 5
    Part.LineSegment(Vector(29.1, -23.2, 0), Vector(30.4, -23.2, 0)),  # 6
    Part.LineSegment(Vector(30.4, -23.2, 0), Vector(30.4, -24.6, 0)),  # 7
], False)
sketch9.addConstraint([
    Sketcher.Constraint("Coincident", 0, 2, 1, 1),
    Sketcher.Constraint("Coincident", 1, 2, 2, 1),
    Sketcher.Constraint("Coincident", 2, 2, 3, 1),
    Sketcher.Constraint("Coincident", 3, 2, 0, 1),
    Sketcher.Constraint("Coincident", 4, 2, 5, 1),
    Sketcher.Constraint("Coincident", 5, 2, 6, 1),
    Sketcher.Constraint("Coincident", 6, 2, 7, 1),
    Sketcher.Constraint("Coincident", 7, 2, 4, 1),
    Sketcher.Constraint("Horizontal", 0),
    Sketcher.Constraint("Vertical", 1),
    Sketcher.Constraint("Horizontal", 2),
    Sketcher.Constraint("Vertical", 3),
    Sketcher.Constraint("Horizontal", 4),
    Sketcher.Constraint("Vertical", 5),
    Sketcher.Constraint("Horizontal", 6),
    Sketcher.Constraint("Vertical", 7),
    Sketcher.Constraint("Equal", 6, 5),
    Sketcher.Constraint("DistanceY", 1, 1, 1, 2, 3.0),
    Sketcher.Constraint("DistanceX", 0, 1, 0, 2, 2.4),
    Sketcher.Constraint("DistanceX", 4, 2, 4, 1, 1.4),
    Sketcher.Constraint("DistanceX", 3, 2, 4, 2, 0.5),
    Sketcher.Constraint("DistanceY", 3, 2, 4, 2, 0.8),
    Sketcher.Constraint("DistanceX", -1, 1, 0, 2, 30.95),
    Sketcher.Constraint("DistanceY", 0, 2, -1, 1, 25.385),
])
pad6 = body.newObject("PartDesign::Pad", "Pad005")
pad6.Profile = sketch9
pad6.Length = 10
doc.recompute()

linearpattern2 = body.newObject("PartDesign::LinearPattern", "LinearPattern001")
linearpattern2.Originals = [pad6]
linearpattern2.Direction = (doc.getObject("X_Axis"), [""])
linearpattern2.Mode = "offset"
linearpattern2.Offset = 2.4
linearpattern2.Occurrences = 16
linearpattern2.Reversed = True
body.Tip = linearpattern2

# Sketch on XY plane
sketch10 = body.newObject("Sketcher::SketchObject", "Sketch009")
sketch10.AttachmentSupport = (doc.getObject("XY_Plane"), [""])
sketch10.MapMode = "FlatFace"
sketch10.AttachmentOffset = App.Placement(Vector(0, 0, 1.6), App.Rotation())
sketch10.addGeometry([
    Part.LineSegment(Vector(14.7, -23.2, 0), Vector(14.7, -24.6, 0)),  # 0
    Part.LineSegment(Vector(14.7, -24.6, 0), Vector(16.1, -24.6, 0)),  # 1
    Part.LineSegment(Vector(16.1, -24.6, 0), Vector(16.1, -23.2, 0)),  # 2
    Part.LineSegment(Vector(16.1, -23.2, 0), Vector(14.7, -23.2, 0)),  # 3
    Part.LineSegment(Vector(12.2, -23.2, 0), Vector(12.2, -24.6, 0)),  # 4
    Part.LineSegment(Vector(12.2, -24.6, 0), Vector(13.7, -24.6, 0)),  # 5
    Part.LineSegment(Vector(13.7, -24.6, 0), Vector(13.7, -23.2, 0)),  # 6
    Part.LineSegment(Vector(13.7, -23.2, 0), Vector(12.2, -23.2, 0)),  # 7
], False)
sketch10.addConstraint([
    Sketcher.Constraint("Coincident", 0, 2, 1, 1),
    Sketcher.Constraint("Coincident", 1, 2, 2, 1),
    Sketcher.Constraint("Coincident", 2, 2, 3, 1),
    Sketcher.Constraint("Coincident", 3, 2, 0, 1),
    Sketcher.Constraint("Coincident", 4, 2, 5, 1),
    Sketcher.Constraint("Coincident", 5, 2, 6, 1),
    Sketcher.Constraint("Coincident", 6, 2, 7, 1),
    Sketcher.Constraint("Coincident", 7, 2, 4, 1),
    Sketcher.Constraint("Vertical", 0),
    Sketcher.Constraint("Horizontal", 1),
    Sketcher.Constraint("Vertical", 2),
    Sketcher.Constraint("Horizontal", 3),
    Sketcher.Constraint("Vertical", 4),
    Sketcher.Constraint("Horizontal", 5),
    Sketcher.Constraint("Vertical", 6),
    Sketcher.Constraint("Horizontal", 7),
    Sketcher.Constraint("Horizontal", 1, 2, 4, 2),
    Sketcher.Constraint("Horizontal", 3, 2, 6, 2),
    Sketcher.Constraint("Equal", 3, 5),
    Sketcher.Constraint("Equal", 7, 0),
    Sketcher.Constraint("DistanceX", 1, 1, 1, 2, 1.4),
    Sketcher.Constraint("DistanceX", 5, 2, 0, 2, 1.0),
    Sketcher.Constraint("DistanceX", -1, 1, 0, 2, 14.65),
    Sketcher.Constraint("DistanceY", 0, 2, -1, 1, 24.585),
])
pad7 = body.newObject("PartDesign::Pad", "Pad006")
pad7.Profile = sketch10
pad7.Length = 10

doc.recompute()
